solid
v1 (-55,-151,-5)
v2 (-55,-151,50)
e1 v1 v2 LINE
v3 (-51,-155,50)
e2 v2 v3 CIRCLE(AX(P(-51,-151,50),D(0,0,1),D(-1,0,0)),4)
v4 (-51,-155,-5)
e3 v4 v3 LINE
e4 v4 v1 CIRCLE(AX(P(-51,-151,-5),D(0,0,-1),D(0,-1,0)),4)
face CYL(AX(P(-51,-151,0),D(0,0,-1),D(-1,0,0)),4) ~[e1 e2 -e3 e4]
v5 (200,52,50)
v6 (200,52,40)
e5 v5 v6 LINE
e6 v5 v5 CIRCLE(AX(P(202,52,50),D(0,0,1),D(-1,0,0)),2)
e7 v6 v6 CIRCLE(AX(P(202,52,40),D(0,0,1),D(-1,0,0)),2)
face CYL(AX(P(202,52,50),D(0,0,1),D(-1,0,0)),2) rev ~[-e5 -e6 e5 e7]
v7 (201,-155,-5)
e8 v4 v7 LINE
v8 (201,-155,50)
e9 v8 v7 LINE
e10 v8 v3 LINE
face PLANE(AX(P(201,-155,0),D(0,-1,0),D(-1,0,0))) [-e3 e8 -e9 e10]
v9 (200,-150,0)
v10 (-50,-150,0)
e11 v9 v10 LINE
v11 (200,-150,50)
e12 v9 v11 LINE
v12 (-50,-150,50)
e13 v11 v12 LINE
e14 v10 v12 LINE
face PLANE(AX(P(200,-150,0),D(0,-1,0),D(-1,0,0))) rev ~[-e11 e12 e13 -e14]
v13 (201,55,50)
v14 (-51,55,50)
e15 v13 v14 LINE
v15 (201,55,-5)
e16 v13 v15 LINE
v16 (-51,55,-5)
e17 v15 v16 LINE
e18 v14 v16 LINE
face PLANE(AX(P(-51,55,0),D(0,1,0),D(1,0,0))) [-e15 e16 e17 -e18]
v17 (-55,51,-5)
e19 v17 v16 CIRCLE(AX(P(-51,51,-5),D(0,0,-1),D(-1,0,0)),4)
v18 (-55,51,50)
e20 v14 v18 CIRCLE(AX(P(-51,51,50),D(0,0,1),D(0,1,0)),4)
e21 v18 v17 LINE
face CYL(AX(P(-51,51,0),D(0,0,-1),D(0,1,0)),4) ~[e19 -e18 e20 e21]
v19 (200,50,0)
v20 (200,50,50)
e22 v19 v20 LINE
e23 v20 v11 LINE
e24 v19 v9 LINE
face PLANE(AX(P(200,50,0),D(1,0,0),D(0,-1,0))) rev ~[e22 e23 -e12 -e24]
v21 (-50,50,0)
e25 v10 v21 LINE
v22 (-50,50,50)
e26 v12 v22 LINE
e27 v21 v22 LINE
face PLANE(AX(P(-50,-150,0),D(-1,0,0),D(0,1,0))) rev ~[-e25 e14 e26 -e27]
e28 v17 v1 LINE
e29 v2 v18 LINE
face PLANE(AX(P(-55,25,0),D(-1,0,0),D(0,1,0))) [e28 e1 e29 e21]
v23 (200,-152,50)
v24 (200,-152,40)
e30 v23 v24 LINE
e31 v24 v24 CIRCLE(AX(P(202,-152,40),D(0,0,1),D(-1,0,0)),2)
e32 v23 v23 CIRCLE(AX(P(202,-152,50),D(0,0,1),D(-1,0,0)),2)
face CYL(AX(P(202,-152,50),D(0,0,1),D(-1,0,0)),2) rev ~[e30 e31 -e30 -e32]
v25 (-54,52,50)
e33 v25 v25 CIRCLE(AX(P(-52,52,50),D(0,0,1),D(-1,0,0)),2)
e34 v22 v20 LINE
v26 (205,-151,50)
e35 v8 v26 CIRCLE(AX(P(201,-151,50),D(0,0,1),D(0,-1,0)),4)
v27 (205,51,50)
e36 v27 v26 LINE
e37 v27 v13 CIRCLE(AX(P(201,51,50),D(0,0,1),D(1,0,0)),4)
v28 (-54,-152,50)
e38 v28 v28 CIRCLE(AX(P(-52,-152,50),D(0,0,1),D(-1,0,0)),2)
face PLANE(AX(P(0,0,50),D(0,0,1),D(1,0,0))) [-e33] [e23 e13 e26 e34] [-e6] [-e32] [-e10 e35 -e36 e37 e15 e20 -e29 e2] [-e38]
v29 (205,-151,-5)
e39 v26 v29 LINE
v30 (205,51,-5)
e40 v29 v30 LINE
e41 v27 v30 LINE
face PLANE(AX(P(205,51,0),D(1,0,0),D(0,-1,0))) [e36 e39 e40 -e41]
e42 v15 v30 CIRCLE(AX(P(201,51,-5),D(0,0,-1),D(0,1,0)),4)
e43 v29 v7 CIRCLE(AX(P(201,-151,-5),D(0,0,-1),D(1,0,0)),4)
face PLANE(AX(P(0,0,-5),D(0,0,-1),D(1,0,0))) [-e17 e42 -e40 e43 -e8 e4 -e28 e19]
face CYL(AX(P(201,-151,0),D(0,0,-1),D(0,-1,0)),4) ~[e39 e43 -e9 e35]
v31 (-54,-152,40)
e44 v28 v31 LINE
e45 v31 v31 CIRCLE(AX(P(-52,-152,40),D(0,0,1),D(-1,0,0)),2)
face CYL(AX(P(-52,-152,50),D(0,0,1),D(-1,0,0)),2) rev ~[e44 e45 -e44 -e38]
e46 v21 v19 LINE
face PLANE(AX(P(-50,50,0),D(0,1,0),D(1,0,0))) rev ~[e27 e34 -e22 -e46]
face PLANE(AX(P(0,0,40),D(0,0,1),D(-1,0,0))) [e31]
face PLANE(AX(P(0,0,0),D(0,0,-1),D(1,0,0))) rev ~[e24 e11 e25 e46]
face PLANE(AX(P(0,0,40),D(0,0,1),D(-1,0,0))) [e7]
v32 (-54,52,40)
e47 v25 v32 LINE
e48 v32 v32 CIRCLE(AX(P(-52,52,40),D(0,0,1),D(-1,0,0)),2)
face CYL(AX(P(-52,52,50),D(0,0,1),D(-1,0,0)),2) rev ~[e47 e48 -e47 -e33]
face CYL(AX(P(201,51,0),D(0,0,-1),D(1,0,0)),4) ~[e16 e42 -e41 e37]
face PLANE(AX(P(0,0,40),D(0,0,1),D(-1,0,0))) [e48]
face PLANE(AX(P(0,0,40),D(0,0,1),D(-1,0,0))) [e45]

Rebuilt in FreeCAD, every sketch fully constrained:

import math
import FreeCAD as App
import Part
import Sketcher

V = App.Vector
Q = App.Units.Quantity

doc = App.newDocument("Part")
params = doc.addObject("Spreadsheet::Sheet", "Params")
for row, (alias, value) in enumerate([
    ("sketch1_radius", "4 mm"),
    ("sketch1_width", "250 mm"),
    ("sketch1_height", "200 mm"),
    ("sketch1_width2", "252 mm"),
    ("pad1_length", "50 mm"),
    ("sketch2_radius", "4 mm"),
    ("sketch2_width", "252 mm"),
    ("sketch2_height", "202 mm"),
    ("pad2_length", "5 mm"),
    ("sketch3_diameter", "4 mm"),
    ("pocket1_length", "10 mm"),
], start=1):
    params.set(f"A{row}", alias)
    params.set(f"B{row}", "=" + value)
    params.setAlias(f"B{row}", alias)

body = doc.addObject("PartDesign::Body", "Body")

# Sketch on XY plane
sketch1 = body.newObject("Sketcher::SketchObject", "Sketch")
sketch1.AttachmentSupport = (doc.getObject("XY_Plane"), [""])
sketch1.MapMode = "FlatFace"
sketch1.addGeometry([
    Part.LineSegment(V(-55, 51, 0), V(-55, -151, 0)),  # 0
    Part.ArcOfCircle(Part.Circle(V(-51, -151, 0), V(0, 0, 1), 4), math.radians(180), math.radians(270)),  # 1
    Part.LineSegment(V(-51, -155, 0), V(201, -155, 0)),  # 2
    Part.ArcOfCircle(Part.Circle(V(201, -151, 0), V(0, 0, 1), 4), math.radians(-90), math.radians(0)),  # 3
    Part.LineSegment(V(205, -151, 0), V(205, 51, 0)),  # 4
    Part.ArcOfCircle(Part.Circle(V(201, 51, 0), V(0, 0, 1), 4), math.radians(0), math.radians(90)),  # 5
    Part.LineSegment(V(201, 55, 0), V(-51, 55, 0)),  # 6
    Part.ArcOfCircle(Part.Circle(V(-51, 51, 0), V(0, 0, 1), 4), math.radians(90), math.radians(180)),  # 7
    Part.LineSegment(V(-50, -150, 0), V(-50, 50, 0)),  # 8
    Part.LineSegment(V(-50, 50, 0), V(200, 50, 0)),  # 9
    Part.LineSegment(V(200, 50, 0), V(200, -150, 0)),  # 10
    Part.LineSegment(V(200, -150, 0), V(-50, -150, 0)),  # 11
], False)
sketch1.addConstraint([
    Sketcher.Constraint("Tangent", 0, 2, 1, 1),
    Sketcher.Constraint("Tangent", 1, 2, 2, 1),
    Sketcher.Constraint("Tangent", 2, 2, 3, 1),
    Sketcher.Constraint("Tangent", 3, 2, 4, 1),
    Sketcher.Constraint("Tangent", 4, 2, 5, 1),
    Sketcher.Constraint("Tangent", 5, 2, 6, 1),
    Sketcher.Constraint("Tangent", 6, 2, 7, 1),
    Sketcher.Constraint("Tangent", 7, 2, 0, 1),
    Sketcher.Constraint("Coincident", 8, 2, 9, 1),
    Sketcher.Constraint("Coincident", 9, 2, 10, 1),
    Sketcher.Constraint("Coincident", 10, 2, 11, 1),
    Sketcher.Constraint("Coincident", 11, 2, 8, 1),
    Sketcher.Constraint("Vertical", 0),
    Sketcher.Constraint("Horizontal", 2),
    Sketcher.Constraint("Vertical", 4),
    Sketcher.Constraint("Horizontal", 6),
    Sketcher.Constraint("Vertical", 8),
    Sketcher.Constraint("Horizontal", 9),
    Sketcher.Constraint("Vertical", 10),
    Sketcher.Constraint("Horizontal", 11),
    Sketcher.Constraint("Equal", 1, 3),
    Sketcher.Constraint("Equal", 3, 5),
    Sketcher.Constraint("Equal", 5, 7),
    Sketcher.Constraint("Radius", 1, Q("4 mm")),
    Sketcher.Constraint("DistanceX", 9, 1, 9, 2, Q("250 mm")),
    Sketcher.Constraint("DistanceY", 8, 1, 8, 2, Q("200 mm")),
    Sketcher.Constraint("DistanceX", -1, 1, 9, 2, Q("200 mm")),
    Sketcher.Constraint("DistanceY", 2, 2, 5, 2, Q("210 mm")),
    Sketcher.Constraint("DistanceX", 2, 1, 2, 2, Q("252 mm")),
    Sketcher.Constraint("DistanceX", 1, 3, -1, 1, Q("51 mm")),
    Sketcher.Constraint("DistanceY", 1, 3, -1, 1, Q("151 mm")),
    Sketcher.Constraint("DistanceY", -1, 1, 8, 2, Q("50 mm")),
])
sketch1.setExpression("Constraints[23]", "Params.sketch1_radius")
sketch1.setExpression("Constraints[24]", "Params.sketch1_width")
sketch1.setExpression("Constraints[25]", "Params.sketch1_height")
sketch1.setExpression("Constraints[28]", "Params.sketch1_width2")
pad1 = body.newObject("PartDesign::Pad", "Pad")
pad1.Profile = sketch1
pad1.setExpression("Length", "Params.pad1_length")

# Sketch on XY plane
sketch2 = body.newObject("Sketcher::SketchObject", "Sketch001")
sketch2.AttachmentSupport = (doc.getObject("XY_Plane"), [""])
sketch2.MapMode = "FlatFace"
sketch2.addGeometry([
    Part.LineSegment(V(201, -155, 0), V(-51, -155, 0)),  # 0
    Part.ArcOfCircle(Part.Circle(V(-51, -151, 0), V(0, 0, 1), 4), math.radians(180), math.radians(270)),  # 1
    Part.LineSegment(V(-55, -151, 0), V(-55, 51, 0)),  # 2
    Part.ArcOfCircle(Part.Circle(V(-51, 51, 0), V(0, 0, 1), 4), math.radians(90), math.radians(180)),  # 3
    Part.LineSegment(V(-51, 55, 0), V(201, 55, 0)),  # 4
    Part.ArcOfCircle(Part.Circle(V(201, 51, 0), V(0, 0, 1), 4), math.radians(0), math.radians(90)),  # 5
    Part.LineSegment(V(205, 51, 0), V(205, -151, 0)),  # 6
    Part.ArcOfCircle(Part.Circle(V(201, -151, 0), V(0, 0, 1), 4), math.radians(-90), math.radians(0)),  # 7
], False)
sketch2.addConstraint([
    Sketcher.Constraint("Tangent", 0, 2, 1, 2),
    Sketcher.Constraint("Tangent", 1, 1, 2, 1),
    Sketcher.Constraint("Tangent", 2, 2, 3, 2),
    Sketcher.Constraint("Tangent", 3, 1, 4, 1),
    Sketcher.Constraint("Tangent", 4, 2, 5, 2),
    Sketcher.Constraint("Tangent", 5, 1, 6, 1),
    Sketcher.Constraint("Tangent", 6, 2, 7, 2),
    Sketcher.Constraint("Tangent", 7, 1, 0, 1),
    Sketcher.Constraint("Horizontal", 0),
    Sketcher.Constraint("Vertical", 2),
    Sketcher.Constraint("Horizontal", 4),
    Sketcher.Constraint("Vertical", 6),
    Sketcher.Constraint("Equal", 1, 3),
    Sketcher.Constraint("Equal", 3, 5),
    Sketcher.Constraint("Equal", 5, 7),
    Sketcher.Constraint("Radius", 1, Q("4 mm")),
    Sketcher.Constraint("DistanceX", 0, 2, 0, 1, Q("252 mm")),
    Sketcher.Constraint("DistanceY", 2, 1, 2, 2, Q("202 mm")),
    Sketcher.Constraint("DistanceX", 1, 3, -1, 1, Q("51 mm")),
    Sketcher.Constraint("DistanceY", 1, 3, -1, 1, Q("151 mm")),
])
sketch2.setExpression("Constraints[15]", "Params.sketch2_radius")
sketch2.setExpression("Constraints[16]", "Params.sketch2_width")
sketch2.setExpression("Constraints[17]", "Params.sketch2_height")
pad2 = body.newObject("PartDesign::Pad", "Pad001")
pad2.Profile = sketch2
pad2.setExpression("Length", "Params.pad2_length")
pad2.Reversed = True

# Sketch on XY plane
sketch3 = body.newObject("Sketcher::SketchObject", "Sketch002")
sketch3.AttachmentSupport = (doc.getObject("XY_Plane"), [""])
sketch3.MapMode = "FlatFace"
sketch3.AttachmentOffset = App.Placement(V(0, 0, 50), App.Rotation())
sketch3.addGeometry([
    Part.Circle(V(-52, 52, 0), V(0, 0, 1), 2),
    Part.Circle(V(202, 52, 0), V(0, 0, 1), 2),
    Part.Circle(V(202, -152, 0), V(0, 0, 1), 2),
    Part.Circle(V(-52, -152, 0), V(0, 0, 1), 2),
], False)
sketch3.addConstraint([
    Sketcher.Constraint("Equal", 0, 1),
    Sketcher.Constraint("Equal", 1, 2),
    Sketcher.Constraint("Equal", 2, 3),
    Sketcher.Constraint("Horizontal", 0, 3, 1, 3),
    Sketcher.Constraint("Horizontal", 2, 3, 3, 3),
    Sketcher.Constraint("Vertical", 1, 3, 2, 3),
    Sketcher.Constraint("Vertical", 0, 3, 3, 3),
    Sketcher.Constraint("Diameter", 0, Q("4 mm")),
    Sketcher.Constraint("DistanceX", 0, 3, -1, 1, Q("52 mm")),
    Sketcher.Constraint("DistanceY", -1, 1, 0, 3, Q("52 mm")),
    Sketcher.Constraint("DistanceX", -1, 1, 1, 3, Q("202 mm")),
    Sketcher.Constraint("DistanceY", 2, 3, -1, 1, Q("152 mm")),
])
sketch3.setExpression("Constraints[7]", "Params.sketch3_diameter")
pocket1 = body.newObject("PartDesign::Pocket", "Pocket")
pocket1.Profile = sketch3
pocket1.setExpression("Length", "Params.pocket1_length")

doc.recompute()
